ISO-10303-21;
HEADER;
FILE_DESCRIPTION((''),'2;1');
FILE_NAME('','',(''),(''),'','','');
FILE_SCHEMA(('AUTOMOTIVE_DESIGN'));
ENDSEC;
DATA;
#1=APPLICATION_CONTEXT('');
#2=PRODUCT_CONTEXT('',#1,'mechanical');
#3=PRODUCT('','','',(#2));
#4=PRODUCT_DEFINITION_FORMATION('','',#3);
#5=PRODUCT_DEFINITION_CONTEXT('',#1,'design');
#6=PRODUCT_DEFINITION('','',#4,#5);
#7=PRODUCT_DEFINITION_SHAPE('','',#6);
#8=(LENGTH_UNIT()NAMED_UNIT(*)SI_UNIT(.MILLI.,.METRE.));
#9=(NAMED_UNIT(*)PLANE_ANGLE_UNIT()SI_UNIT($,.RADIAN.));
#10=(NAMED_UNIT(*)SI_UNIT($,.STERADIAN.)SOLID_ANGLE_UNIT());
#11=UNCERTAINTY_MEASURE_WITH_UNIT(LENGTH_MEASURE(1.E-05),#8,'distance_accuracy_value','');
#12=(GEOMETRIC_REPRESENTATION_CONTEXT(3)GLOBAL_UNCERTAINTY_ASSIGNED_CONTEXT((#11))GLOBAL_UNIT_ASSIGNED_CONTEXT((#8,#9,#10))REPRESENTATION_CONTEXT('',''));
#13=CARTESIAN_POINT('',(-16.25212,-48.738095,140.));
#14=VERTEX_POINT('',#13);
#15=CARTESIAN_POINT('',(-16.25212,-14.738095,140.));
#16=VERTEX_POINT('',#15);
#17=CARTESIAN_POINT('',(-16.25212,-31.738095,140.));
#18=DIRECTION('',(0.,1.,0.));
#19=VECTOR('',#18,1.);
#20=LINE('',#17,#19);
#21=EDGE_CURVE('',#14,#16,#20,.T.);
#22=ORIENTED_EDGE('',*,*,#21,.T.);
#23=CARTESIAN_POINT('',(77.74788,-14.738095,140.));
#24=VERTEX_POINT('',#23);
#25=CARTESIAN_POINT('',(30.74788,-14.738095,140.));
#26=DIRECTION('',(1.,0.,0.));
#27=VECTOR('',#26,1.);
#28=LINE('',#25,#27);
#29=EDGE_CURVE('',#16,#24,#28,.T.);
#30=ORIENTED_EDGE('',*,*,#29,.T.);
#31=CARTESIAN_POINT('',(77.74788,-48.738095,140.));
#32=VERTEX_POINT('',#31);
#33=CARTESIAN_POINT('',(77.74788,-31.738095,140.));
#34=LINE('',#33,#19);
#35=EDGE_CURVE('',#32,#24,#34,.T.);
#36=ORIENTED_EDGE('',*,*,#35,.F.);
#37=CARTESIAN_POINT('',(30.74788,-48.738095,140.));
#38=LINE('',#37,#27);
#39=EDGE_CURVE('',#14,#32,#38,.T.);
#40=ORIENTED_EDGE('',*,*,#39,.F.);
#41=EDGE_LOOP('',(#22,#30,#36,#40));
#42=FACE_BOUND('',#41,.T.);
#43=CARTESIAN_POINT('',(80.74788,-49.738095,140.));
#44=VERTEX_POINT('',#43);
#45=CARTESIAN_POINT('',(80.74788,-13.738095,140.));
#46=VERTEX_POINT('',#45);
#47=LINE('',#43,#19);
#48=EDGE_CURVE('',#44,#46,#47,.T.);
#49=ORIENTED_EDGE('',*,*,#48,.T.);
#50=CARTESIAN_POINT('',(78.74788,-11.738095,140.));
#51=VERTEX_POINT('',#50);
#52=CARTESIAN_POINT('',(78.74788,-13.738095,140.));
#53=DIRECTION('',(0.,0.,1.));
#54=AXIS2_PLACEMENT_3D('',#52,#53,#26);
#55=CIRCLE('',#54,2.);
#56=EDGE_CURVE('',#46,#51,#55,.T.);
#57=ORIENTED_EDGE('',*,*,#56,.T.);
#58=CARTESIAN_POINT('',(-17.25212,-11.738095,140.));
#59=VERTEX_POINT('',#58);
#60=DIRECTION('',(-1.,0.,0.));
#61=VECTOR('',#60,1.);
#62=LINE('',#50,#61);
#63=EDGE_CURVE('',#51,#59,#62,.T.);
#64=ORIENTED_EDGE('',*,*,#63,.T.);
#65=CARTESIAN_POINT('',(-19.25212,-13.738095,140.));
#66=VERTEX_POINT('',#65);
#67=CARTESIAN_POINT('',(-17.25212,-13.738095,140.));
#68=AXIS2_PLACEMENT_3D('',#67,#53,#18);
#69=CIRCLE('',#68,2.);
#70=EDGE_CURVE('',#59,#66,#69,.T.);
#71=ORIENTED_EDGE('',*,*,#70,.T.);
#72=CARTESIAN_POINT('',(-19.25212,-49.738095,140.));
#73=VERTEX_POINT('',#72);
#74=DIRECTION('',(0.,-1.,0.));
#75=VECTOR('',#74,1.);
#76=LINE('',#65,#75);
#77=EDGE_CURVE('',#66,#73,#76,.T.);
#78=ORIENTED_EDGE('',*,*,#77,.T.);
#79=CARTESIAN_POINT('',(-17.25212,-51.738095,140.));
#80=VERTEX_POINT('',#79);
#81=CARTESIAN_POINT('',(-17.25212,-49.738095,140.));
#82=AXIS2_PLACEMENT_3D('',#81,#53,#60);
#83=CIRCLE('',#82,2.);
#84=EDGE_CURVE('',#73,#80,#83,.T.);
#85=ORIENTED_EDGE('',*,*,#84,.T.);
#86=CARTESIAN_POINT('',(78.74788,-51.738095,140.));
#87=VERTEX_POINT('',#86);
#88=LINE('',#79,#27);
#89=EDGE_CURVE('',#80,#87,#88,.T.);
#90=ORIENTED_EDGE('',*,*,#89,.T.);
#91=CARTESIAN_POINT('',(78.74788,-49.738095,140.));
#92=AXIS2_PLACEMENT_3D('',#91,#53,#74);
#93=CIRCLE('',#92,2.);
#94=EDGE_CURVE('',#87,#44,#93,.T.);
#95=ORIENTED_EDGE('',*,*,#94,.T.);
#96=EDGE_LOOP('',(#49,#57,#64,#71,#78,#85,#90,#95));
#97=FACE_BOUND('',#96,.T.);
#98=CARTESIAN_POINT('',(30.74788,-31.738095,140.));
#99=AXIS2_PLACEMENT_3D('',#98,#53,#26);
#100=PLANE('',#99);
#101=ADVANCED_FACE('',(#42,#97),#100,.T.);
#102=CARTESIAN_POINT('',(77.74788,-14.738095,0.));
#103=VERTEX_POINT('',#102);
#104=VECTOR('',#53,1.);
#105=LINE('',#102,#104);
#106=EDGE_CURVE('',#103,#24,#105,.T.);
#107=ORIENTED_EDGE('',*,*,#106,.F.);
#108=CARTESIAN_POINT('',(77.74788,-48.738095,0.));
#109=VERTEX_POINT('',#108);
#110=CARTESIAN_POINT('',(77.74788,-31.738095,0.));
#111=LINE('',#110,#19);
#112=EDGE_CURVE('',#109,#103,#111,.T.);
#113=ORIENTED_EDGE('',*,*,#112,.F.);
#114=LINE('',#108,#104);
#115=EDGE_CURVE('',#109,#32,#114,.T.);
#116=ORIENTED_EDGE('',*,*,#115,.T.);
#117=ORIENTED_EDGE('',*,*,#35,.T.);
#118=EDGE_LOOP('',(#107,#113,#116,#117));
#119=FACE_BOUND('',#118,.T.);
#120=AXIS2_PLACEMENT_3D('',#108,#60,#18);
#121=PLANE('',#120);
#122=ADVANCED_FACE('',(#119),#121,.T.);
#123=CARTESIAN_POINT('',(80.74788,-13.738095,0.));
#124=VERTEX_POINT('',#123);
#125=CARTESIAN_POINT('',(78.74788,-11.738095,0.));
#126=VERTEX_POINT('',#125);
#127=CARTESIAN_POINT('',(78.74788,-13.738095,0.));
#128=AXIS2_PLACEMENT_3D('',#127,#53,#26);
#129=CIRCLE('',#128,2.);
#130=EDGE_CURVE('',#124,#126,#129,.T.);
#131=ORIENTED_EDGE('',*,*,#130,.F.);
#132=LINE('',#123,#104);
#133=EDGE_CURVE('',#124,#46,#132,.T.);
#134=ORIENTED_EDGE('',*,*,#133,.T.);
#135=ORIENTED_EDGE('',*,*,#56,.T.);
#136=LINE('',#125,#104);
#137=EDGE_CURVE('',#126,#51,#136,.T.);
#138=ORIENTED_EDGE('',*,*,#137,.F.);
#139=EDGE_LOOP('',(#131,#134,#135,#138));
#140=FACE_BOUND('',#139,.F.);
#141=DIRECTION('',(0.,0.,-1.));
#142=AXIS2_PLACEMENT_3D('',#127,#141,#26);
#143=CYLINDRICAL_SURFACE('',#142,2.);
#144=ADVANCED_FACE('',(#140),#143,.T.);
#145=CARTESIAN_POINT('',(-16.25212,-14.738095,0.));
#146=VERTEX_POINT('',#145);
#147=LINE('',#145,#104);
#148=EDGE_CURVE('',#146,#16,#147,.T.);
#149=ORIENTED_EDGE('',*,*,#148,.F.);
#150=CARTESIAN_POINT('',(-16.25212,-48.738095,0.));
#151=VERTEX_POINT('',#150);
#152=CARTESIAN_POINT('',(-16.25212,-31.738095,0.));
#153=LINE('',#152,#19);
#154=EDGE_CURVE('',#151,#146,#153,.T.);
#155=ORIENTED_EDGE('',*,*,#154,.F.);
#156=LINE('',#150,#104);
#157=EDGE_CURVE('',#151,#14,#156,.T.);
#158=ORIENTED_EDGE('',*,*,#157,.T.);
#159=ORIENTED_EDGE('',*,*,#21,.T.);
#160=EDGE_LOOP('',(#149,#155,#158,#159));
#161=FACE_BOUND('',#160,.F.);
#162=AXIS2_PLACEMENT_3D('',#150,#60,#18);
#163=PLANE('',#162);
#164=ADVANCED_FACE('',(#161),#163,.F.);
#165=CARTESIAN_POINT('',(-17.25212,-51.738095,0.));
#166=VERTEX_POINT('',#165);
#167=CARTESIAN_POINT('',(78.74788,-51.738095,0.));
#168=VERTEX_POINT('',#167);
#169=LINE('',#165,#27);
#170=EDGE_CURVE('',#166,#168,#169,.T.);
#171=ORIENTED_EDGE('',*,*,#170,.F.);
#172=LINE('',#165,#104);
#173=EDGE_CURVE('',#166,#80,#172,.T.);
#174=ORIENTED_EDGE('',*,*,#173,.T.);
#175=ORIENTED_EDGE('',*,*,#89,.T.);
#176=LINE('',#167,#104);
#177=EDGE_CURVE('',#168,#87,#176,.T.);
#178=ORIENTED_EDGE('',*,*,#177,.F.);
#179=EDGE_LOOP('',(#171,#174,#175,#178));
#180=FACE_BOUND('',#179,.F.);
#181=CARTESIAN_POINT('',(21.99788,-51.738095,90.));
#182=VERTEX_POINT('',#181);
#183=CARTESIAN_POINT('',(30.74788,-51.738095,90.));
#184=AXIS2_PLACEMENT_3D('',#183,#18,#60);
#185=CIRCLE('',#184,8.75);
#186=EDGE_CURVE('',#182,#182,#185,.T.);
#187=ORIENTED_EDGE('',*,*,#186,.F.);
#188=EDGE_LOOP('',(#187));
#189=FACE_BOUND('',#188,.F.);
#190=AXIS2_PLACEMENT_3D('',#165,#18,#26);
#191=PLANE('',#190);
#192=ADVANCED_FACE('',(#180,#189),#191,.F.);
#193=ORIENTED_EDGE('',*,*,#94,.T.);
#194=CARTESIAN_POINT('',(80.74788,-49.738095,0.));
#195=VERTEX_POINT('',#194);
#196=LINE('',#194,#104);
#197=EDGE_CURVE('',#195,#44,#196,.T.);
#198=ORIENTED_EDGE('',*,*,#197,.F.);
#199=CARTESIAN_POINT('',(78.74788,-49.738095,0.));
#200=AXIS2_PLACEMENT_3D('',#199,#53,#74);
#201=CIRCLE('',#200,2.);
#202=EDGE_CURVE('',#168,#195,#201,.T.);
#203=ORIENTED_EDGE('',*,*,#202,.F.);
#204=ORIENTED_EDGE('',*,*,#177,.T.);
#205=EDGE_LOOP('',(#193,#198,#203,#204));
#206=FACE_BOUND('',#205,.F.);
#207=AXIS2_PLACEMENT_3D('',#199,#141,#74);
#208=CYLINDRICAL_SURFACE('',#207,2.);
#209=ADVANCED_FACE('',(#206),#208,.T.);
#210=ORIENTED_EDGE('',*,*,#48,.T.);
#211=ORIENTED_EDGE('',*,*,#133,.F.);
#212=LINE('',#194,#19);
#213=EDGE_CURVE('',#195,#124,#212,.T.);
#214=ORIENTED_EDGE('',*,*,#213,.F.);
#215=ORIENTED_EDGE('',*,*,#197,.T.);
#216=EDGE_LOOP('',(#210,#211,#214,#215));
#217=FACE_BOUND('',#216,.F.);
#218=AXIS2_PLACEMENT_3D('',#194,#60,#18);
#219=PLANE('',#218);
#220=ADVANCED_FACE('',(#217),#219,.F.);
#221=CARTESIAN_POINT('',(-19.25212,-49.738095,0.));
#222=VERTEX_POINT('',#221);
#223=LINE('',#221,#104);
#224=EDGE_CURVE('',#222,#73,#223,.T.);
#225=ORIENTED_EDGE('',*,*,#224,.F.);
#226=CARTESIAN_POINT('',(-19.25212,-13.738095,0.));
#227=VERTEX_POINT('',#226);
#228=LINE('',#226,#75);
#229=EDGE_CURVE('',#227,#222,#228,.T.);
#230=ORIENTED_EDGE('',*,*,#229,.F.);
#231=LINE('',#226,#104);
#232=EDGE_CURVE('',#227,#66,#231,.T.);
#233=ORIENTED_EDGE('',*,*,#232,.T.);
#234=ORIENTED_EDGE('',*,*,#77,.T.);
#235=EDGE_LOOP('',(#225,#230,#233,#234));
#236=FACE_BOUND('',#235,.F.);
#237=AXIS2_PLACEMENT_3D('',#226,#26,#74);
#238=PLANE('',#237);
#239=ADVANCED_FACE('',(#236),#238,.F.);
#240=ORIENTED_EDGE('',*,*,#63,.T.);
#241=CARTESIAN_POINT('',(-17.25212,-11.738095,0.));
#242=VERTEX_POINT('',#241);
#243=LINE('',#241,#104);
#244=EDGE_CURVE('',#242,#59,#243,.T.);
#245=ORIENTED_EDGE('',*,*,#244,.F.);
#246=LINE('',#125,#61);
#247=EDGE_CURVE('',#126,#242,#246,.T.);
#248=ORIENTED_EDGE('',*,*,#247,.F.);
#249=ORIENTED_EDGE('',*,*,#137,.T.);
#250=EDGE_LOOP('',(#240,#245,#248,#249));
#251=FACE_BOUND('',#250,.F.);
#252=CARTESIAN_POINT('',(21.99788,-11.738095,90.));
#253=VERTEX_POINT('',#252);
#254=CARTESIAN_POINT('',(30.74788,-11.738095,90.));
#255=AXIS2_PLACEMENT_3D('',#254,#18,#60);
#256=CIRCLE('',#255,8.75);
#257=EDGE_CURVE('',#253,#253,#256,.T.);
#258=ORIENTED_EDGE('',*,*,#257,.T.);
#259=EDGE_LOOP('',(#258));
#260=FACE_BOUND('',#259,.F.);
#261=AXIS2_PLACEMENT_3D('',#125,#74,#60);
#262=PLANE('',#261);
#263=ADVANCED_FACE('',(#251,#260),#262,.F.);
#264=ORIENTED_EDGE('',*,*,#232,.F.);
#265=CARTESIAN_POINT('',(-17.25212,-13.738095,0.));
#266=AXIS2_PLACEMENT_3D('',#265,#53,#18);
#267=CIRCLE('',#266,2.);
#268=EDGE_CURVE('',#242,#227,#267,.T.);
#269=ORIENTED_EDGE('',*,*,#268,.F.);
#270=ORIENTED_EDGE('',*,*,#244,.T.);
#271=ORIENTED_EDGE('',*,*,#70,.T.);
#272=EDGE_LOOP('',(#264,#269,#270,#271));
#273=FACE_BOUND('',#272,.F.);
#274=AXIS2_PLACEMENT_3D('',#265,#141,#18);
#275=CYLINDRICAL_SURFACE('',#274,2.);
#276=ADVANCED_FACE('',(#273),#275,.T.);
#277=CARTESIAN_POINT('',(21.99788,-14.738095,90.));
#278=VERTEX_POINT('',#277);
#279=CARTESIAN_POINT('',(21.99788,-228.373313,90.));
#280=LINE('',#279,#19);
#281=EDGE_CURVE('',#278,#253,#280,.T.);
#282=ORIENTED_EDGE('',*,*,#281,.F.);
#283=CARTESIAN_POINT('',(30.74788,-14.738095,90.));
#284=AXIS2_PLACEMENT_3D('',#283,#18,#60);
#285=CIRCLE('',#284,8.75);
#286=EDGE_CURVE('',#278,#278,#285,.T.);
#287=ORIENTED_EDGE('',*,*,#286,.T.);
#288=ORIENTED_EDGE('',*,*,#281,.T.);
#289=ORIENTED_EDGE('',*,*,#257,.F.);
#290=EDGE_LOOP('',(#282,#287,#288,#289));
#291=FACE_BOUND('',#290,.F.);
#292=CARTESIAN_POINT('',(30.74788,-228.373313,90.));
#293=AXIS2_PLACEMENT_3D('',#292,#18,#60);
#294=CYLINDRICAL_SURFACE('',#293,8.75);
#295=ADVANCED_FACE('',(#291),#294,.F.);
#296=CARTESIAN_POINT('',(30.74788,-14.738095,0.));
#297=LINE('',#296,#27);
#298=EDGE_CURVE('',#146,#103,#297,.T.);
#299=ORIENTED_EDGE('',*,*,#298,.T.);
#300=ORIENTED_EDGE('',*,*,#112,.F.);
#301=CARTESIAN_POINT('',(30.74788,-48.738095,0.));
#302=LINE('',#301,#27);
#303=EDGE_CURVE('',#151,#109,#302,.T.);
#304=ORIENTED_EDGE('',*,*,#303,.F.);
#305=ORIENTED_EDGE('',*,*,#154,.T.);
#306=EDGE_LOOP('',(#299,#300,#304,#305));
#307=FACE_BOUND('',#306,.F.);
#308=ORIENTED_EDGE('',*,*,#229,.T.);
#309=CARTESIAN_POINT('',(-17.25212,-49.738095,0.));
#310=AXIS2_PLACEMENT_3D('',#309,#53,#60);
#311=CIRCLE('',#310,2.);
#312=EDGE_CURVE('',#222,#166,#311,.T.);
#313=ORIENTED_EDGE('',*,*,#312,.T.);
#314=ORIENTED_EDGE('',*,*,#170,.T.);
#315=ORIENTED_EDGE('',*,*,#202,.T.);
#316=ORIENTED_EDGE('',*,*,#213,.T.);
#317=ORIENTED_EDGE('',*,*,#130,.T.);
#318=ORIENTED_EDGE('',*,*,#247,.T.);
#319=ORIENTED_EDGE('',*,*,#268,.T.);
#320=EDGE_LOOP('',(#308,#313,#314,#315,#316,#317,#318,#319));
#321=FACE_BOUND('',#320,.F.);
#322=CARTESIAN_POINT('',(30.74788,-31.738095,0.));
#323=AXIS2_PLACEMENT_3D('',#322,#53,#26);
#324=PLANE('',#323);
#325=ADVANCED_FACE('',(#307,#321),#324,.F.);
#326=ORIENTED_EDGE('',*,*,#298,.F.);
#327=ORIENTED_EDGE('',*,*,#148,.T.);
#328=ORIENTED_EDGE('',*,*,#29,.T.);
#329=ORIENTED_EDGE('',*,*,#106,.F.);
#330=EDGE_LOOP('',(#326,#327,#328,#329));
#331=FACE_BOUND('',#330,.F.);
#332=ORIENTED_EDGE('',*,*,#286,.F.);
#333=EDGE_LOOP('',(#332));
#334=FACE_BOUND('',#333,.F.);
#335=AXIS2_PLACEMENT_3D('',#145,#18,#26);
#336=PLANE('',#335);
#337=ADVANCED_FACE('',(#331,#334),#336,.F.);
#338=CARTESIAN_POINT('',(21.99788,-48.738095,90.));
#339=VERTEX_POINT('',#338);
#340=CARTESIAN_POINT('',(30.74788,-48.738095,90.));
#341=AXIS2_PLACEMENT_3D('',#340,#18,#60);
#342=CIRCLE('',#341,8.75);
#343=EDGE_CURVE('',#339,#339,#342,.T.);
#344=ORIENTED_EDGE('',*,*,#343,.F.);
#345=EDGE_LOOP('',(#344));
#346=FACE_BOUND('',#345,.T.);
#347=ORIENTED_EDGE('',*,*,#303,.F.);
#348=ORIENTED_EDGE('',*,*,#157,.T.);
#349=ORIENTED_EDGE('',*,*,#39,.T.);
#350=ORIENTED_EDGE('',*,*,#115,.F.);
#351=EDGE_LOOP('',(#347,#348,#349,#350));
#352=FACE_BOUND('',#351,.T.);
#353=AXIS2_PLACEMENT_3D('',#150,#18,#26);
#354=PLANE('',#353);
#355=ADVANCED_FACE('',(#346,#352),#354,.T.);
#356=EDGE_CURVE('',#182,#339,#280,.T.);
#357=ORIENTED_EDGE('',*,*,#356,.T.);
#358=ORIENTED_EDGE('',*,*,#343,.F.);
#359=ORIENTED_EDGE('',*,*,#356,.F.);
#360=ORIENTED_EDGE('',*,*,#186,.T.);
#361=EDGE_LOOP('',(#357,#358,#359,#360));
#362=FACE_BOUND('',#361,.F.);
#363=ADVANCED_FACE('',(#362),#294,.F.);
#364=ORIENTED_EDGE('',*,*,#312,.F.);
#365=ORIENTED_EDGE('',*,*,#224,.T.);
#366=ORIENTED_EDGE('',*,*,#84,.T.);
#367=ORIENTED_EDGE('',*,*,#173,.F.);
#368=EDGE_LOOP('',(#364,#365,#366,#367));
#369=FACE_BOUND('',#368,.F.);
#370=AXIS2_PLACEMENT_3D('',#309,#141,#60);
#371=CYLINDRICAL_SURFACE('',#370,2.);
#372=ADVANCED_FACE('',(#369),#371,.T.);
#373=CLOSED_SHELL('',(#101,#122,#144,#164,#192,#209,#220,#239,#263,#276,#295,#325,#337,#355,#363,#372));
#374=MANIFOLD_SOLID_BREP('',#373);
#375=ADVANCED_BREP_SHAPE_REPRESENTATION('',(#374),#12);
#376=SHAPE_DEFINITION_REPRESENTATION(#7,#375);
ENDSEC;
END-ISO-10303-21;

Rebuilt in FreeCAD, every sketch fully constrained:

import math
import FreeCAD as App
import Part
import Sketcher
from FreeCAD import Vector
Q = App.Units.Quantity

doc = App.newDocument("Part")
params = doc.addObject("Spreadsheet::Sheet", "Params")
for row, (alias, value) in enumerate([
    ("sketch1_radius", "2 mm"),
    ("sketch1_width", "96 mm"),
    ("sketch1_width2", "94 mm"),
    ("sketch1_height", "36 mm"),
    ("sketch1_height2", "34 mm"),
    ("pad1_length", "140 mm"),
    ("sketch2_diameter", "17.5 mm"),
    ("hole_diameter", "17.5 mm"),
], start=1):
    params.set(f"A{row}", alias)
    params.set(f"B{row}", "=" + value)
    params.setAlias(f"B{row}", alias)

body = doc.addObject("PartDesign::Body", "Body")

# Sketch on XY plane
sketch1 = doc.addObject("Sketcher::SketchObject", "Sketch")
body.addObject(sketch1)
sketch1.AttachmentSupport = (doc.XY_Plane, [""])
sketch1.MapMode = "FlatFace"
sketch1.addGeometry([
    Part.ArcOfCircle(Part.Circle(Vector(-17.3, -49.7, 0), Vector(0, 0, 1), 2), math.radians(180), math.radians(270)),  # 0
    Part.LineSegment(Vector(-17.3, -51.7, 0), Vector(78.7, -51.7, 0)),  # 1
    Part.ArcOfCircle(Part.Circle(Vector(78.7, -49.7, 0), Vector(0, 0, 1), 2), math.radians(-90), math.radians(0)),  # 2
    Part.LineSegment(Vector(80.7, -49.7, 0), Vector(80.7, -13.7, 0)),  # 3
    Part.ArcOfCircle(Part.Circle(Vector(78.7, -13.7, 0), Vector(0, 0, 1), 2), math.radians(0), math.radians(90)),  # 4
    Part.LineSegment(Vector(78.7, -11.7, 0), Vector(-17.3, -11.7, 0)),  # 5
    Part.ArcOfCircle(Part.Circle(Vector(-17.3, -13.7, 0), Vector(0, 0, 1), 2), math.radians(90), math.radians(180)),  # 6
    Part.LineSegment(Vector(-19.3, -13.7, 0), Vector(-19.3, -49.7, 0)),  # 7
    Part.LineSegment(Vector(77.7, -48.7, 0), Vector(-16.3, -48.7, 0)),  # 8
    Part.LineSegment(Vector(-16.3, -48.7, 0), Vector(-16.3, -14.7, 0)),  # 9
    Part.LineSegment(Vector(-16.3, -14.7, 0), Vector(77.7, -14.7, 0)),  # 10
    Part.LineSegment(Vector(77.7, -14.7, 0), Vector(77.7, -48.7, 0)),  # 11
], False)
sketch1.addConstraint([
    Sketcher.Constraint("Tangent", 0, 2, 1, 1),
    Sketcher.Constraint("Tangent", 1, 2, 2, 1),
    Sketcher.Constraint("Tangent", 2, 2, 3, 1),
    Sketcher.Constraint("Tangent", 3, 2, 4, 1),
    Sketcher.Constraint("Tangent", 4, 2, 5, 1),
    Sketcher.Constraint("Tangent", 5, 2, 6, 1),
    Sketcher.Constraint("Tangent", 6, 2, 7, 1),
    Sketcher.Constraint("Tangent", 7, 2, 0, 1),
    Sketcher.Constraint("Coincident", 8, 2, 9, 1),
    Sketcher.Constraint("Coincident", 9, 2, 10, 1),
    Sketcher.Constraint("Coincident", 10, 2, 11, 1),
    Sketcher.Constraint("Coincident", 11, 2, 8, 1),
    Sketcher.Constraint("Horizontal", 1),
    Sketcher.Constraint("Vertical", 3),
    Sketcher.Constraint("Horizontal", 5),
    Sketcher.Constraint("Vertical", 7),
    Sketcher.Constraint("Horizontal", 8),
    Sketcher.Constraint("Vertical", 9),
    Sketcher.Constraint("Horizontal", 10),
    Sketcher.Constraint("Vertical", 11),
    Sketcher.Constraint("Equal", 0, 2),
    Sketcher.Constraint("Equal", 2, 4),
    Sketcher.Constraint("Equal", 4, 6),
    Sketcher.Constraint("Radius", 0, Q("2 mm")),
    Sketcher.Constraint("DistanceX", 1, 1, 1, 2, Q("96 mm")),
    Sketcher.Constraint("DistanceX", 8, 2, 8, 1, Q("94 mm")),
    Sketcher.Constraint("DistanceY", 3, 1, 3, 2, Q("36 mm")),
    Sketcher.Constraint("DistanceY", 9, 1, 9, 2, Q("34 mm")),
    Sketcher.Constraint("DistanceX", 0, 3, 8, 2, Q("1 mm")),
    Sketcher.Constraint("DistanceY", 0, 3, 8, 2, Q("1 mm")),
    Sketcher.Constraint("DistanceX", 0, 3, -1, 1, Q("17.25212 mm")),
    Sketcher.Constraint("DistanceY", 0, 3, -1, 1, Q("49.738095 mm")),
])
sketch1.setExpression("Constraints[23]", "Params.sketch1_radius")
sketch1.setExpression("Constraints[24]", "Params.sketch1_width")
sketch1.setExpression("Constraints[25]", "Params.sketch1_width2")
sketch1.setExpression("Constraints[26]", "Params.sketch1_height")
sketch1.setExpression("Constraints[27]", "Params.sketch1_height2")
pad1 = doc.addObject("PartDesign::Pad", "Pad")
body.addObject(pad1)
pad1.Profile = sketch1
pad1.setExpression("Length", "Params.pad1_length")

# Sketch on XZ plane
sketch2 = doc.addObject("Sketcher::SketchObject", "Sketch001")
body.addObject(sketch2)
sketch2.AttachmentSupport = (doc.XZ_Plane, [""])
sketch2.MapMode = "FlatFace"
sketch2.AttachmentOffset = App.Placement(Vector(0, 0, 51.738095), App.Rotation())
sketch2.addGeometry(Part.Circle(Vector(31, 90, 0), Vector(0, 0, 1), 9), False)
sketch2.addConstraint([
    Sketcher.Constraint("Diameter", 0, Q("17.5 mm")),
    Sketcher.Constraint("DistanceY", -1, 1, 0, 3, Q("90 mm")),
    Sketcher.Constraint("DistanceX", -1, 1, 0, 3, Q("30.74788 mm")),
])
sketch2.setExpression("Constraints[0]", "Params.sketch2_diameter")
doc.recompute()
hole = doc.addObject("PartDesign::Hole", "Hole")
body.addObject(hole)
hole.Profile = sketch2
hole.ThreadType = "None"
hole.setExpression("Diameter", "Params.hole_diameter")
hole.DepthType = "ThroughAll"

doc.recompute()
